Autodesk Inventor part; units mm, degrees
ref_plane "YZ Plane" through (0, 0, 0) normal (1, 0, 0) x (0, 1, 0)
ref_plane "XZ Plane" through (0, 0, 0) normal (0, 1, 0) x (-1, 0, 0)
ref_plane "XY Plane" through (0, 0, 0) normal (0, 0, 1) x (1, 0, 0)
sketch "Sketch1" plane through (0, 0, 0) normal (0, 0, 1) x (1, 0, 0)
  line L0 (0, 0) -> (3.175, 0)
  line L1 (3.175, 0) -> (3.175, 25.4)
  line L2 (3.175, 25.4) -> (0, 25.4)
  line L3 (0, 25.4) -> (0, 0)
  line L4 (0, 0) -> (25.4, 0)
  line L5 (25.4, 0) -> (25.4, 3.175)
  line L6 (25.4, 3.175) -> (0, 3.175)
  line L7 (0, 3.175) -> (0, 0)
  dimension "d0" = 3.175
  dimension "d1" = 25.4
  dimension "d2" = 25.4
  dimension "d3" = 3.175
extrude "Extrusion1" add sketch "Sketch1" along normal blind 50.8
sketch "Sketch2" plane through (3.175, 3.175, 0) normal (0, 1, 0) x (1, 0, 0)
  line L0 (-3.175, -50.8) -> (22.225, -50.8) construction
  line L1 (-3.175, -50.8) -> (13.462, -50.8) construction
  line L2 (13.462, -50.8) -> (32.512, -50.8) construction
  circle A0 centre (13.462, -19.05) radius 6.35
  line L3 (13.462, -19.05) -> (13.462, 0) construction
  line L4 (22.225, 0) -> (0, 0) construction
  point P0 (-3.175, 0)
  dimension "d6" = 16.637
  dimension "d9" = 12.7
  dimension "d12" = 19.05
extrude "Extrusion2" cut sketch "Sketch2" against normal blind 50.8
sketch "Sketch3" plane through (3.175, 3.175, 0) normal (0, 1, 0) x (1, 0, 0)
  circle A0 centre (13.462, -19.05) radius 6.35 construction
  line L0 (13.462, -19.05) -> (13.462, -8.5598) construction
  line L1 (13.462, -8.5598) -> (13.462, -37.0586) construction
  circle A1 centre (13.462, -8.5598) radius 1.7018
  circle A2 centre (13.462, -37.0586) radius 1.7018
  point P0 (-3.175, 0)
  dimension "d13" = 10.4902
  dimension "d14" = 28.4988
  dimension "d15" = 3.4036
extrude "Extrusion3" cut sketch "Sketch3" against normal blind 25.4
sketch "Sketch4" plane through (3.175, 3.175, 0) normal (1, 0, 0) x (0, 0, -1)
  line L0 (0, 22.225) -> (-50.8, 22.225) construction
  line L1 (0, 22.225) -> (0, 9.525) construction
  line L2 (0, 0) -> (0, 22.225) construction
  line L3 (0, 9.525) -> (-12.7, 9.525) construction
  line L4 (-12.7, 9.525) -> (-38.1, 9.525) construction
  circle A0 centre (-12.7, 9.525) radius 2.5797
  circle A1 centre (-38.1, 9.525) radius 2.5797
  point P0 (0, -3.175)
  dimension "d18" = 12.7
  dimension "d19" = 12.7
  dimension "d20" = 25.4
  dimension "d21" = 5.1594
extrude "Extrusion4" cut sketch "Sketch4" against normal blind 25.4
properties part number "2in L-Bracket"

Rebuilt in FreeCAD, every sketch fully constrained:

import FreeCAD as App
import Part
import Sketcher
from FreeCAD import Vector
Q = App.Units.Quantity

doc = App.newDocument("Part")
body = doc.addObject("PartDesign::Body", "Body")

sketch1 = body.newObject("Sketcher::SketchObject", "Sketch")
sketch1.AttachmentSupport = (doc.getObject("XY_Plane"), [""])
sketch1.MapMode = "FlatFace"
sketch1.addGeometry(Part.LineSegment(Vector(0, 0, 0), Vector(25.4, 0, 0)), False)
sketch1.addGeometry(Part.LineSegment(Vector(25.4, 0, 0), Vector(25.4, 3.2, 0)), False)
sketch1.addGeometry(Part.LineSegment(Vector(25.4, 3.2, 0), Vector(3.2, 3.2, 0)), False)
sketch1.addGeometry(Part.LineSegment(Vector(3.2, 3.2, 0), Vector(3.2, 25.4, 0)), False)
sketch1.addGeometry(Part.LineSegment(Vector(3.2, 25.4, 0), Vector(0, 25.4, 0)), False)
sketch1.addGeometry(Part.LineSegment(Vector(0, 25.4, 0), Vector(0, 0, 0)), False)
sketch1.addConstraint(Sketcher.Constraint("Coincident", 0, 2, 1, 1))
sketch1.addConstraint(Sketcher.Constraint("Coincident", 1, 2, 2, 1))
sketch1.addConstraint(Sketcher.Constraint("Coincident", 2, 2, 3, 1))
sketch1.addConstraint(Sketcher.Constraint("Coincident", 3, 2, 4, 1))
sketch1.addConstraint(Sketcher.Constraint("Coincident", 4, 2, 5, 1))
sketch1.addConstraint(Sketcher.Constraint("Coincident", 5, 2, 0, 1))
sketch1.addConstraint(Sketcher.Constraint("Horizontal", 0))
sketch1.addConstraint(Sketcher.Constraint("Vertical", 1))
sketch1.addConstraint(Sketcher.Constraint("Horizontal", 2))
sketch1.addConstraint(Sketcher.Constraint("Vertical", 3))
sketch1.addConstraint(Sketcher.Constraint("Horizontal", 4))
sketch1.addConstraint(Sketcher.Constraint("Vertical", 5))
sketch1.addConstraint(Sketcher.Constraint("Coincident", 5, 2, -1, 1))
sketch1.addConstraint(Sketcher.Constraint("Equal", 4, 1))
sketch1.addConstraint(Sketcher.Constraint("Equal", 2, 3))
sketch1.addConstraint(Sketcher.Constraint("DistanceX", 0, 1, 0, 2, Q("1 in")))
sketch1.addConstraint(Sketcher.Constraint("DistanceX", 4, 2, 4, 1, Q("0.125 in")))
pad1 = body.newObject("PartDesign::Pad", "Pad")
pad1.Profile = sketch1
pad1.Length = Q("2 in")

sketch2 = body.newObject("Sketcher::SketchObject", "Sketch001")
sketch2.AttachmentSupport = (doc.getObject("XZ_Plane"), [""])
sketch2.MapMode = "FlatFace"
sketch2.AttachmentOffset = App.Placement(Vector(0, 0, -0.125 * 25.4), App.Rotation())
sketch2.addGeometry(Part.Circle(Vector(17, 19, 0), Vector(0, 0, 1), 6), False)
sketch2.addConstraint(Sketcher.Constraint("Diameter", 0, Q("0.5 in")))
sketch2.addConstraint(Sketcher.Constraint("DistanceY", -1, 1, 0, 3, Q("0.75 in")))
sketch2.addConstraint(Sketcher.Constraint("DistanceX", -1, 1, 0, 3, Q("0.655 in")))
pocket1 = body.newObject("PartDesign::Pocket", "Pocket")
pocket1.Profile = sketch2
pocket1.Length = Q("2 in")
pocket1.Reversed = True

sketch3 = body.newObject("Sketcher::SketchObject", "Sketch002")
sketch3.AttachmentSupport = (doc.getObject("XZ_Plane"), [""])
sketch3.MapMode = "FlatFace"
sketch3.AttachmentOffset = App.Placement(Vector(0, 0, -0.125 * 25.4), App.Rotation())
sketch3.addGeometry(Part.Circle(Vector(16.6, 8.6, 0), Vector(0, 0, 1), 1.7), False)
sketch3.addGeometry(Part.Circle(Vector(16.6, 37.1, 0), Vector(0, 0, 1), 1.7), False)
sketch3.addConstraint(Sketcher.Constraint("Equal", 0, 1))
sketch3.addConstraint(Sketcher.Constraint("Vertical", 0, 3, 1, 3))
sketch3.addConstraint(Sketcher.Constraint("Diameter", 0, Q("0.134 in")))
sketch3.addConstraint(Sketcher.Constraint("DistanceY", 0, 3, 1, 3, Q("1.122 in")))
sketch3.addConstraint(Sketcher.Constraint("DistanceX", -1, 1, 0, 3, Q("0.655 in")))
sketch3.addConstraint(Sketcher.Constraint("DistanceY", -1, 1, 0, 3, Q("0.337 in")))
pocket2 = body.newObject("PartDesign::Pocket", "Pocket001")
pocket2.Profile = sketch3
pocket2.Length = Q("1 in")
pocket2.Reversed = True

sketch4 = body.newObject("Sketcher::SketchObject", "Sketch003")
sketch4.AttachmentSupport = (doc.getObject("YZ_Plane"), [""])
sketch4.MapMode = "FlatFace"
sketch4.AttachmentOffset = App.Placement(Vector(0, 0, 0.125 * 25.4), App.Rotation())
sketch4.addGeometry(Part.Circle(Vector(12.7, 12.7, 0), Vector(0, 0, 1), 2.6), False)
sketch4.addGeometry(Part.Circle(Vector(12.7, 38.1, 0), Vector(0, 0, 1), 2.6), False)
sketch4.addConstraint(Sketcher.Constraint("Equal", 0, 1))
sketch4.addConstraint(Sketcher.Constraint("Vertical", 0, 3, 1, 3))
sketch4.addConstraint(Sketcher.Constraint("Diameter", 0, Q("0.203126 in")))
sketch4.addConstraint(Sketcher.Constraint("DistanceY", 0, 3, 1, 3, Q("1 in")))
sketch4.addConstraint(Sketcher.Constraint("DistanceX", -1, 1, 0, 3, Q("0.5 in")))
sketch4.addConstraint(Sketcher.Constraint("DistanceY", -1, 1, 0, 3, Q("0.5 in")))
pocket3 = body.newObject("PartDesign::Pocket", "Pocket002")
pocket3.Profile = sketch4
pocket3.Length = Q("1 in")

doc.recompute()
